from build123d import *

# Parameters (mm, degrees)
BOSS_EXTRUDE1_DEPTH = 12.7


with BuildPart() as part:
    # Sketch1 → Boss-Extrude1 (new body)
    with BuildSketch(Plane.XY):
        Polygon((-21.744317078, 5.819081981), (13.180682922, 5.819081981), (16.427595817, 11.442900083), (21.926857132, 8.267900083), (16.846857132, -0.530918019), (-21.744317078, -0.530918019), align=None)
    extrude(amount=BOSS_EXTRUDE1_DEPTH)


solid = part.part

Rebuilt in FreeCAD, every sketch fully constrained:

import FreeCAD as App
import Part
import Sketcher

V = App.Vector
Q = App.Units.Quantity

doc = App.newDocument("Part")
body = doc.addObject("PartDesign::Body", "Body")

sketch1 = body.newObject("Sketcher::SketchObject", "Sketch")
sketch1.AttachmentSupport = (doc.getObject("XY_Plane"), [""])
sketch1.MapMode = "FlatFace"
sketch1.addGeometry([
    Part.LineSegment(V(13, 6, 0), V(-22, 6, 0)),
    Part.LineSegment(V(-22, 6, 0), V(-22, -1, 0)),
    Part.LineSegment(V(-22, -1, 0), V(17, -1, 0)),
    Part.LineSegment(V(17, -1, 0), V(22, 8, 0)),
    Part.LineSegment(V(22, 8, 0), V(16, 11, 0)),
    Part.LineSegment(V(16, 11, 0), V(13, 6, 0)),
], False)
sketch1.addConstraint([
    Sketcher.Constraint("Coincident", 0, 2, 1, 1),
    Sketcher.Constraint("Coincident", 1, 2, 2, 1),
    Sketcher.Constraint("Coincident", 2, 2, 3, 1),
    Sketcher.Constraint("Coincident", 3, 2, 4, 1),
    Sketcher.Constraint("Coincident", 4, 2, 5, 1),
    Sketcher.Constraint("Coincident", 5, 2, 0, 1),
    Sketcher.Constraint("Horizontal", 0),
    Sketcher.Constraint("Vertical", 1),
    Sketcher.Constraint("Horizontal", 2),
    Sketcher.Constraint("Perpendicular", 3, 4),
    Sketcher.Constraint("Perpendicular", 4, 5),
    Sketcher.Constraint("Angle", 3, Q("60 deg")),
    Sketcher.Constraint("Distance", 3, Q("0.4 in")),
    Sketcher.Constraint("DistanceY", 1, 2, 1, 1, Q("0.25 in")),
    Sketcher.Constraint("Distance", 4, Q("0.25 in")),
    Sketcher.Constraint("DistanceX", 0, 2, 0, 1, Q("1.375 in")),
    Sketcher.Constraint("DistanceY", -1, 1, 3, 2, 8.2679),
    Sketcher.Constraint("DistanceX", 0, 2, -1, 1, 21.744317),
])
pad1 = body.newObject("PartDesign::Pad", "Pad")
pad1.Profile = sketch1
pad1.Length = Q("0.5 in")

doc.recompute()
